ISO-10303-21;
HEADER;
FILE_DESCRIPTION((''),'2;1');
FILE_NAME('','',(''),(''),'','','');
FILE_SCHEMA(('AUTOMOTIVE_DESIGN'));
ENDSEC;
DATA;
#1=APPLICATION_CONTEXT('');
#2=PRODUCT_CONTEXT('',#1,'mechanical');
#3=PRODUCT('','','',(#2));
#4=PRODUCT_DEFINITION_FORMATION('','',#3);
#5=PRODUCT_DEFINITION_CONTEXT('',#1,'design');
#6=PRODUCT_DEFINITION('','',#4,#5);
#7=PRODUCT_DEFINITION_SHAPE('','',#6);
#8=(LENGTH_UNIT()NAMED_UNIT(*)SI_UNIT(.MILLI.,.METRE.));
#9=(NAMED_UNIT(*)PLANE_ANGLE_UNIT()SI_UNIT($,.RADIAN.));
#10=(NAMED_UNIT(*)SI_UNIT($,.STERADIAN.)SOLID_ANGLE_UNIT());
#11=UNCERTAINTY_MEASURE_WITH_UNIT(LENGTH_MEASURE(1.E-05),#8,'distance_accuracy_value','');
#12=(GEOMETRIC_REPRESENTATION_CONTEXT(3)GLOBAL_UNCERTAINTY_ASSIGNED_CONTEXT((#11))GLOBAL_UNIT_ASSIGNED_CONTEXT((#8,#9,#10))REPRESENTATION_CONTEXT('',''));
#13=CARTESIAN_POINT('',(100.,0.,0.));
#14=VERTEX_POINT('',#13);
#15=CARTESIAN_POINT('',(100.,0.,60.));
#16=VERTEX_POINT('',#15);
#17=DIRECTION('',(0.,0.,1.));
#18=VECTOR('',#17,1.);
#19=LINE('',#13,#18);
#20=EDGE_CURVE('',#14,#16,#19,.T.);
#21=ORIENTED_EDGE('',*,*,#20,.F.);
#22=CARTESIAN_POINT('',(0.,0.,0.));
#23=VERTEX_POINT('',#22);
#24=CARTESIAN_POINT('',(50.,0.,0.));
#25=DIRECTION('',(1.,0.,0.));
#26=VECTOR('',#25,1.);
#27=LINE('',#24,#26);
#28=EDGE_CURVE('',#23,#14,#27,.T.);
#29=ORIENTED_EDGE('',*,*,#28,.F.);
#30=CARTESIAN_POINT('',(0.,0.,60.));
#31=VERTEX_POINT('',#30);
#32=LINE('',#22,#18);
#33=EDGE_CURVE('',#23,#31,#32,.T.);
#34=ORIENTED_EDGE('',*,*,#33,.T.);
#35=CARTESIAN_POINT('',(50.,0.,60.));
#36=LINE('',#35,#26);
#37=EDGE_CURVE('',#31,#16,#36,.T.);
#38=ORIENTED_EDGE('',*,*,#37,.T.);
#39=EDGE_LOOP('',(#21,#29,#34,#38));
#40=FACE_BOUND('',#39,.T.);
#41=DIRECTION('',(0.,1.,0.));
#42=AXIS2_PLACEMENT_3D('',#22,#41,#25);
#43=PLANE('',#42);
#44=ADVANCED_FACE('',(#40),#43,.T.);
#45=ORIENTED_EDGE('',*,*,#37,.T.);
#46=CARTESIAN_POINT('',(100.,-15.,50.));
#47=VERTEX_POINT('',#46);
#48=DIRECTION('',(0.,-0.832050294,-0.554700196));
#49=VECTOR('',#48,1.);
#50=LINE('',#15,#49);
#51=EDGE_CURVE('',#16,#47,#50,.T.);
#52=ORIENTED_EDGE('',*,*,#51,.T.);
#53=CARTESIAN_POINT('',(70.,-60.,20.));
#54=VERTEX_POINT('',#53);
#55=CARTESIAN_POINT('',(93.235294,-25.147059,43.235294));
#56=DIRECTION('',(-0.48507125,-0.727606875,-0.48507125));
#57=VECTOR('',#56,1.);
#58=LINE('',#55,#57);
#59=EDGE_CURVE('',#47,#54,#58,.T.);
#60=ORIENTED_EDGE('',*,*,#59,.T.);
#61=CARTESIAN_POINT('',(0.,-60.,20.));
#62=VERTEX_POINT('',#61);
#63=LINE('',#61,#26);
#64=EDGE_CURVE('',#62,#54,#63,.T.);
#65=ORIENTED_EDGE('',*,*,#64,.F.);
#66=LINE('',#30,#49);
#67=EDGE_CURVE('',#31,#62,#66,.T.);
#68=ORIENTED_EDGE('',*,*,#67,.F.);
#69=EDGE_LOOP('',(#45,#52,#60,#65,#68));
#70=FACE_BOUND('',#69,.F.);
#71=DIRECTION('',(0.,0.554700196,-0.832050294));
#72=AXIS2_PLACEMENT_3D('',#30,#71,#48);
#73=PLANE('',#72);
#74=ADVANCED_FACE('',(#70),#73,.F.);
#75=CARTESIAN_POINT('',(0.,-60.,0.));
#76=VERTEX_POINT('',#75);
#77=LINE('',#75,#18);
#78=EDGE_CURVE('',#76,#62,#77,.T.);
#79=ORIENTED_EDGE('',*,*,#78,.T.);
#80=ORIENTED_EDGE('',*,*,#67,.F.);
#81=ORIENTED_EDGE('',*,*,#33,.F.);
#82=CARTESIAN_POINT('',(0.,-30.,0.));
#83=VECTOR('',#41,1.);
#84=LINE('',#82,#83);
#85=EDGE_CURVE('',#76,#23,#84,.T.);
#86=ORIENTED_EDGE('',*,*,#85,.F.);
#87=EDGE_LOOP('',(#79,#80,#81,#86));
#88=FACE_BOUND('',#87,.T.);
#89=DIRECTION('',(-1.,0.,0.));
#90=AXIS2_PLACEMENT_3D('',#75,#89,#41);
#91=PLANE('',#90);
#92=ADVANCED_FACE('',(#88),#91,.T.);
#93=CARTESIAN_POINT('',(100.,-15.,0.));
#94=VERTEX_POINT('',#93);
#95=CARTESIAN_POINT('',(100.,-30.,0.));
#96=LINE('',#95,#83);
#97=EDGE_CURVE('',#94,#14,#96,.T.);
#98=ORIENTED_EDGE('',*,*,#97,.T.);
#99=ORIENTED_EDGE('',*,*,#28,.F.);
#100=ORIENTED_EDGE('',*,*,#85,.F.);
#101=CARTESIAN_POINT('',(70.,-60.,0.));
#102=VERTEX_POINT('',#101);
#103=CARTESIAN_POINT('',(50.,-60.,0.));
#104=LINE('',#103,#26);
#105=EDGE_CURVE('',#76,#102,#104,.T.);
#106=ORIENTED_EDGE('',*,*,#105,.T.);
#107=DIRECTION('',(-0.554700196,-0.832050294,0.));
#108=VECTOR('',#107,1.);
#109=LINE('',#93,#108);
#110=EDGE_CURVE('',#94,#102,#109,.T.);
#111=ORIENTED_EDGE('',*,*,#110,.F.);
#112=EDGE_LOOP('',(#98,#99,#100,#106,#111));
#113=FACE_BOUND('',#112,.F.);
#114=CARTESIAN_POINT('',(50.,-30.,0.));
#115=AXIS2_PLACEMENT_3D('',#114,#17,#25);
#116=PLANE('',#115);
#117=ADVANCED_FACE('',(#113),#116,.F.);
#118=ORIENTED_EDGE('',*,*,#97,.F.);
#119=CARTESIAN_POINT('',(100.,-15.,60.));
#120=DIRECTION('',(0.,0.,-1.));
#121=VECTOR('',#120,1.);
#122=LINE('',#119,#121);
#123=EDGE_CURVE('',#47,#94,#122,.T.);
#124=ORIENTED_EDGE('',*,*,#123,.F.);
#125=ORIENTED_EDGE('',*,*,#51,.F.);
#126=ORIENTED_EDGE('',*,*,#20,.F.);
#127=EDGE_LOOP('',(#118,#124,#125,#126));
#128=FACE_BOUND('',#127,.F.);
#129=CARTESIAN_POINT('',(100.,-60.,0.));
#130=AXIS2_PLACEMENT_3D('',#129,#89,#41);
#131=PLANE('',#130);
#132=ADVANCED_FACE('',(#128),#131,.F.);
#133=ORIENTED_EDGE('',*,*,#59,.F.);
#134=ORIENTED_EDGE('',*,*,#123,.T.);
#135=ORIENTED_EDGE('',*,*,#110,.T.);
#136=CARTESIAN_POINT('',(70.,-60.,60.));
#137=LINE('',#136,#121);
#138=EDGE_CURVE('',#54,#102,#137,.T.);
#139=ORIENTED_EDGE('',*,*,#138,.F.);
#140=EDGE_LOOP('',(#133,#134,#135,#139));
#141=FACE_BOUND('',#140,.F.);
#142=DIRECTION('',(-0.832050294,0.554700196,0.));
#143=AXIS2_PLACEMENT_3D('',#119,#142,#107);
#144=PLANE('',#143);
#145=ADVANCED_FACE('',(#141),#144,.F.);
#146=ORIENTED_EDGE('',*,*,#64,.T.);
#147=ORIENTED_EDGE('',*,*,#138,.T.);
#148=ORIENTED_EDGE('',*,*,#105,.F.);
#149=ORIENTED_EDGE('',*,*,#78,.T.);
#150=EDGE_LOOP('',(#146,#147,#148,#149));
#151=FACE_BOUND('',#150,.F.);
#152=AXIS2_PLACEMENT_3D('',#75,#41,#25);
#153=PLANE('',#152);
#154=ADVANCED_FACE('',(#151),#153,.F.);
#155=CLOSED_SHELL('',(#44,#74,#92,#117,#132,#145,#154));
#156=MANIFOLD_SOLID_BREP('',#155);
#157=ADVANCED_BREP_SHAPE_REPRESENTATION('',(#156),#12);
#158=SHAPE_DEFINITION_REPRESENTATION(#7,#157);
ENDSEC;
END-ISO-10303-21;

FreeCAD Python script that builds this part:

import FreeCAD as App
import Part
import Sketcher
Q = App.Units.Quantity

doc = App.newDocument("Part")
params = doc.addObject("Spreadsheet::Sheet", "Params")
for row, (alias, value) in enumerate([
    ("sketch1_width", "100 mm"),
    ("sketch1_height", "60 mm"),
    ("pad1_length", "60 mm"),
    ("sketch2_width", "30 mm"),
    ("sketch2_height", "45 mm"),
    ("sketch3_width", "60 mm"),
    ("sketch3_height", "40 mm"),
], start=1):
    params.set(f"A{row}", alias)
    params.set(f"B{row}", "=" + value)
    params.setAlias(f"B{row}", alias)

body = doc.addObject("PartDesign::Body", "Body")

sketch1 = body.newObject("Sketcher::SketchObject", "Sketch")
sketch1.AttachmentSupport = (doc.getObject("XY_Plane"), [""])
sketch1.MapMode = "FlatFace"
sketch1.addGeometry([
    Part.LineSegment(App.Vector(0, 0, 0), App.Vector(0, -60, 0)),
    Part.LineSegment(App.Vector(0, -60, 0), App.Vector(100, -60, 0)),
    Part.LineSegment(App.Vector(100, -60, 0), App.Vector(100, 0, 0)),
    Part.LineSegment(App.Vector(100, 0, 0), App.Vector(0, 0, 0)),
], False)
sketch1.addConstraint([
    Sketcher.Constraint("Coincident", 0, 2, 1, 1),
    Sketcher.Constraint("Coincident", 1, 2, 2, 1),
    Sketcher.Constraint("Coincident", 2, 2, 3, 1),
    Sketcher.Constraint("Coincident", 3, 2, 0, 1),
    Sketcher.Constraint("Vertical", 0),
    Sketcher.Constraint("Horizontal", 1),
    Sketcher.Constraint("Vertical", 2),
    Sketcher.Constraint("Horizontal", 3),
    Sketcher.Constraint("Coincident", 3, 2, -1, 1),
    Sketcher.Constraint("DistanceX", 1, 1, 1, 2, Q("100 mm")),
    Sketcher.Constraint("DistanceY", 0, 2, 0, 1, Q("60 mm")),
])
sketch1.setExpression("Constraints[9]", "Params.sketch1_width")
sketch1.setExpression("Constraints[10]", "Params.sketch1_height")
pad1 = body.newObject("PartDesign::Pad", "Pad")
pad1.Profile = sketch1
pad1.setExpression("Length", "Params.pad1_length")

sketch2 = body.newObject("Sketcher::SketchObject", "Sketch001")
sketch2.AttachmentSupport = (doc.getObject("XY_Plane"), [""])
sketch2.MapMode = "FlatFace"
sketch2.AttachmentOffset = App.Placement(App.Vector(0, 0, 60), App.Rotation())
sketch2.addGeometry([
    Part.LineSegment(App.Vector(100, -60, 0), App.Vector(100, -15, 0)),
    Part.LineSegment(App.Vector(100, -15, 0), App.Vector(70, -60, 0)),
    Part.LineSegment(App.Vector(70, -60, 0), App.Vector(100, -60, 0)),
], False)
sketch2.addConstraint([
    Sketcher.Constraint("Coincident", 0, 2, 1, 1),
    Sketcher.Constraint("Coincident", 1, 2, 2, 1),
    Sketcher.Constraint("Coincident", 2, 2, 0, 1),
    Sketcher.Constraint("Vertical", 0),
    Sketcher.Constraint("Horizontal", 2),
    Sketcher.Constraint("DistanceX", 2, 1, 2, 2, Q("30 mm")),
    Sketcher.Constraint("DistanceY", 0, 1, 0, 2, Q("45 mm")),
    Sketcher.Constraint("DistanceX", -1, 1, 0, 2, Q("100 mm")),
    Sketcher.Constraint("DistanceY", 0, 2, -1, 1, Q("15 mm")),
])
sketch2.setExpression("Constraints[5]", "Params.sketch2_width")
sketch2.setExpression("Constraints[6]", "Params.sketch2_height")
pocket1 = body.newObject("PartDesign::Pocket", "Pocket")
pocket1.Profile = sketch2
pocket1.Type = "ThroughAll"

sketch3 = body.newObject("Sketcher::SketchObject", "Sketch002")
sketch3.AttachmentSupport = (doc.getObject("YZ_Plane"), [""])
sketch3.MapMode = "FlatFace"
sketch3.addGeometry([
    Part.LineSegment(App.Vector(-60, 60, 0), App.Vector(0, 60, 0)),
    Part.LineSegment(App.Vector(0, 60, 0), App.Vector(-60, 20, 0)),
    Part.LineSegment(App.Vector(-60, 20, 0), App.Vector(-60, 60, 0)),
], False)
sketch3.addConstraint([
    Sketcher.Constraint("Coincident", 0, 2, 1, 1),
    Sketcher.Constraint("Coincident", 1, 2, 2, 1),
    Sketcher.Constraint("Coincident", 2, 2, 0, 1),
    Sketcher.Constraint("Horizontal", 0),
    Sketcher.Constraint("Vertical", 2),
    Sketcher.Constraint("PointOnObject", 0, 2, -2),
    Sketcher.Constraint("DistanceX", 0, 1, 0, 2, Q("60 mm")),
    Sketcher.Constraint("DistanceY", 2, 1, 2, 2, Q("40 mm")),
    Sketcher.Constraint("DistanceY", -1, 1, 0, 2, Q("60 mm")),
])
sketch3.setExpression("Constraints[6]", "Params.sketch3_width")
sketch3.setExpression("Constraints[7]", "Params.sketch3_height")
pocket2 = body.newObject("PartDesign::Pocket", "Pocket001")
pocket2.Profile = sketch3
pocket2.Type = "ThroughAll"
pocket2.Reversed = True

doc.recompute()
